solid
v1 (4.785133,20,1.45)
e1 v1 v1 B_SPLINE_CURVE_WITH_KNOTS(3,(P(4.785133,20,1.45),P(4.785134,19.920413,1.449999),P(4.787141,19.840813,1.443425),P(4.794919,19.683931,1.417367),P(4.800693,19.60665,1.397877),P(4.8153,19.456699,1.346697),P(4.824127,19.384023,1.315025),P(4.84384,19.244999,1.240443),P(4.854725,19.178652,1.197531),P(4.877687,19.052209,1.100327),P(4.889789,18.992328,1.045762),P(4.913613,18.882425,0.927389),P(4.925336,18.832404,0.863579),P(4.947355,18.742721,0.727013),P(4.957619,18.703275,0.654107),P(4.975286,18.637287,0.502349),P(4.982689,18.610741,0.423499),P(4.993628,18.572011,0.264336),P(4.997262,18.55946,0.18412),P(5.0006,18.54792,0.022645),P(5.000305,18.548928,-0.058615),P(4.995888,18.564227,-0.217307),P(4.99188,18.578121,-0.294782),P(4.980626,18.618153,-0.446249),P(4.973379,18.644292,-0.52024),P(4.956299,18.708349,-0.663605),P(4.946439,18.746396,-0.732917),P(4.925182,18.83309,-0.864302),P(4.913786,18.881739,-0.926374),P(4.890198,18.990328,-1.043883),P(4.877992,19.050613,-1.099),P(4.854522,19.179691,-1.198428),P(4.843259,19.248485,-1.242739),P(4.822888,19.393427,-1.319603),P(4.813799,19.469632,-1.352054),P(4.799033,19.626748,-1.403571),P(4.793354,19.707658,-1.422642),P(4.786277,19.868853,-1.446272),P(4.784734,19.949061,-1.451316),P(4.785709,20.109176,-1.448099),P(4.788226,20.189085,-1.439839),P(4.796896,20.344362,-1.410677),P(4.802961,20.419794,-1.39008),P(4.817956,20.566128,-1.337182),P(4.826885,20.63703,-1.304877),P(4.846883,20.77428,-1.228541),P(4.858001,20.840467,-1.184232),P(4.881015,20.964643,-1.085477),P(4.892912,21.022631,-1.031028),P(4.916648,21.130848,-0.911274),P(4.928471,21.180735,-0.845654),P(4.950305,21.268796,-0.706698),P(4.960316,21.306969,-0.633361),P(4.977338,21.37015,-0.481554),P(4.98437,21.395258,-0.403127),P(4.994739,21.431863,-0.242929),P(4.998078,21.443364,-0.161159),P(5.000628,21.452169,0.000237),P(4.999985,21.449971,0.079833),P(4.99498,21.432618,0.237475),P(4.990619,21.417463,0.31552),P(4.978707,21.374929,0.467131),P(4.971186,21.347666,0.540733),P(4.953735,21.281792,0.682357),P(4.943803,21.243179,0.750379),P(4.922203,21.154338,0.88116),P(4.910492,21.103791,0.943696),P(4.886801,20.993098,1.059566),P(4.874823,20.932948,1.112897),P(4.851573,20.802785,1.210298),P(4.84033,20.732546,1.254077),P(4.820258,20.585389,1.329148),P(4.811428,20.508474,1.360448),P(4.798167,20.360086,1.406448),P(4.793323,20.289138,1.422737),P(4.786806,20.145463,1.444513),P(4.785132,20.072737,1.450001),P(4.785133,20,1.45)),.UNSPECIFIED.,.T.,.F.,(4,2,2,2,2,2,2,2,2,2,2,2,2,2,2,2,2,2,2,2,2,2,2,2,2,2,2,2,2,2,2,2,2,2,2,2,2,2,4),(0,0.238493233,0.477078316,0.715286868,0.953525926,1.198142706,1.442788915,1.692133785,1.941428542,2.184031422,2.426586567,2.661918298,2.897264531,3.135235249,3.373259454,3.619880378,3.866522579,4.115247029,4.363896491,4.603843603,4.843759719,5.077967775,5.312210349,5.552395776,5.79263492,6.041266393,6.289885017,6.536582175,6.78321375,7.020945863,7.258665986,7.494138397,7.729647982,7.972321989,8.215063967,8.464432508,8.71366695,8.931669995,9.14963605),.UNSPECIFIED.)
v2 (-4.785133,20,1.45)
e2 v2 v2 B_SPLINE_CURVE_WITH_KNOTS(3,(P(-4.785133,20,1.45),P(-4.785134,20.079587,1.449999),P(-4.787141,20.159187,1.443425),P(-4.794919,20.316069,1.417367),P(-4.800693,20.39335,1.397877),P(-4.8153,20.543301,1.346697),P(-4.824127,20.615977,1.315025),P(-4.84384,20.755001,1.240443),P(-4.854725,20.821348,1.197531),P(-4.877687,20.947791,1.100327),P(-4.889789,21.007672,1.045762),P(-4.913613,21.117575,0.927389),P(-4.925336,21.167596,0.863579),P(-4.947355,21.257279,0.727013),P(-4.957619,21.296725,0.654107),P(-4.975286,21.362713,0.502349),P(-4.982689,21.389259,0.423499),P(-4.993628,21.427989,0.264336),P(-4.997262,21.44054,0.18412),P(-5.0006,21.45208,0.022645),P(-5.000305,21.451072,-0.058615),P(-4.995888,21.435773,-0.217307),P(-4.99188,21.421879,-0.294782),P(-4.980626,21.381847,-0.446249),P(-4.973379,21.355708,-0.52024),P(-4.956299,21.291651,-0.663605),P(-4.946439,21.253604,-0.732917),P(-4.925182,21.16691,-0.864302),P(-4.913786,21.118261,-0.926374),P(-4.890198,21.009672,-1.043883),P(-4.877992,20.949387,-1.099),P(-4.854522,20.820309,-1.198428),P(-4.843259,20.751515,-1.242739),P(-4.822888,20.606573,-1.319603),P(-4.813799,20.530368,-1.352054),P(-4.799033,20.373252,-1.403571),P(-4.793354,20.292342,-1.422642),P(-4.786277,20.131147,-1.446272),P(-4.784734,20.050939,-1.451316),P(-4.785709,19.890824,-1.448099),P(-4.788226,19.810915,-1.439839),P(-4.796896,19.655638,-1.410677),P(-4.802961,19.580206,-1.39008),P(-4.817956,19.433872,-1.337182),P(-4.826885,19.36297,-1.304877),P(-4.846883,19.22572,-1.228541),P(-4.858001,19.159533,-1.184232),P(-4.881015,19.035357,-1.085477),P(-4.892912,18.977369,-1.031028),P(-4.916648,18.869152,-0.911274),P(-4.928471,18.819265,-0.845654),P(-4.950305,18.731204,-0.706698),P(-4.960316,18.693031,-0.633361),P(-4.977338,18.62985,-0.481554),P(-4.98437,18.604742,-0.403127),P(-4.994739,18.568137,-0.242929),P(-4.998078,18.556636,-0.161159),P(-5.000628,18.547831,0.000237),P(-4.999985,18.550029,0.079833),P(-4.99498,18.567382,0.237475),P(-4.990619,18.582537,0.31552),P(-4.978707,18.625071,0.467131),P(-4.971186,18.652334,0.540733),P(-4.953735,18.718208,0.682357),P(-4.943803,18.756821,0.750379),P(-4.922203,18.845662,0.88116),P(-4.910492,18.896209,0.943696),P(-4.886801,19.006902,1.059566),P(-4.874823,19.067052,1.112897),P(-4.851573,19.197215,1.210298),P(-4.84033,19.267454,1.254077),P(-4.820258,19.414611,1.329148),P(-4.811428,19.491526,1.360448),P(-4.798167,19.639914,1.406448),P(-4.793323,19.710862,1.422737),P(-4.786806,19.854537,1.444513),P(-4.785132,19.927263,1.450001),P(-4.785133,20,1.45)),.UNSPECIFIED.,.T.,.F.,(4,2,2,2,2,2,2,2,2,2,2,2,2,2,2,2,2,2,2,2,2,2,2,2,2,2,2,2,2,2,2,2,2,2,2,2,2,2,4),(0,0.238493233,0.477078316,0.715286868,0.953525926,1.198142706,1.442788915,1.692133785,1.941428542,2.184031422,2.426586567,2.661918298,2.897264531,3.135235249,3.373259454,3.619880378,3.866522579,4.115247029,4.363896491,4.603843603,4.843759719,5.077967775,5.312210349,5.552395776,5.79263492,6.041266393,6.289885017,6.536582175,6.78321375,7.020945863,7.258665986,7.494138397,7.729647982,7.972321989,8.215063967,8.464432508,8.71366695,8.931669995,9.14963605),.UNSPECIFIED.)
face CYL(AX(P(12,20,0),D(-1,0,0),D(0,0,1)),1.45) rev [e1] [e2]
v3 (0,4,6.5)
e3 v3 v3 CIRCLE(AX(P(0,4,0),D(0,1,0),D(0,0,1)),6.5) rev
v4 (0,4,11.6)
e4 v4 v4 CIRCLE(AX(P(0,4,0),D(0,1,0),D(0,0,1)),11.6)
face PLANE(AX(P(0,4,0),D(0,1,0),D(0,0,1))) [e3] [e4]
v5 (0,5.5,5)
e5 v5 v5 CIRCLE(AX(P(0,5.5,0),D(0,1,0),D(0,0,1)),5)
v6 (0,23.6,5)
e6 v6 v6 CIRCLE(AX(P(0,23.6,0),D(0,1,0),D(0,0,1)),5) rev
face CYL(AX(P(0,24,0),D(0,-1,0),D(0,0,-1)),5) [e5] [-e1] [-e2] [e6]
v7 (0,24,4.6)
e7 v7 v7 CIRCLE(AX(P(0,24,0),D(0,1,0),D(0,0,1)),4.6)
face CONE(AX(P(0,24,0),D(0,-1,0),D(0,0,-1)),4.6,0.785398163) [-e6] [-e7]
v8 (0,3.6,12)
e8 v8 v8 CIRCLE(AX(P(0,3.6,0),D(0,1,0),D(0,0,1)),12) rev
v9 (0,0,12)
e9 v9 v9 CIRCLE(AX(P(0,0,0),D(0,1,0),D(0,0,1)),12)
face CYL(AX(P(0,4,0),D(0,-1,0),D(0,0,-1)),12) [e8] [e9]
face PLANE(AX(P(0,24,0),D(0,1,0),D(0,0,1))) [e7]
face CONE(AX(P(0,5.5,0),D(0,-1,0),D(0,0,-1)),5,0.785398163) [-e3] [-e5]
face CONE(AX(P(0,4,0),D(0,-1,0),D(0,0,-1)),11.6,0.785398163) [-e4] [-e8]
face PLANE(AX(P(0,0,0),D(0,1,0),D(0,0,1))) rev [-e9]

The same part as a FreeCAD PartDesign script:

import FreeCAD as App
import Part
import Sketcher

V = App.Vector


def edges_at(feature, points):
    """Names of the edges that pass closest to the given points."""
    edges = feature.Shape.Edges
    near = lambda p: min(range(len(edges)), key=lambda i: edges[i].distToShape(Part.Vertex(*p))[0])
    return sorted({f"Edge{near(p) + 1}" for p in points})

doc = App.newDocument("Part")
body = doc.addObject("PartDesign::Body", "Body")

# Sketch on XZ plane
sketch1 = body.newObject("Sketcher::SketchObject", "Sketch")
sketch1.AttachmentSupport = (doc.getObject("XZ_Plane"), [""])
sketch1.MapMode = "FlatFace"
sketch1.addGeometry(Part.Circle(V(0, 0, 0), V(0, 0, 1), 12), False)
sketch1.addConstraint([
    Sketcher.Constraint("Coincident", 0, 3, -1, 1),
    Sketcher.Constraint("Diameter", 0, 24.0),
])
pad1 = body.newObject("PartDesign::Pad", "Pad")
pad1.Profile = sketch1
pad1.Length = 4
pad1.Reversed = True

# Sketch on XZ plane
sketch2 = body.newObject("Sketcher::SketchObject", "Sketch001")
sketch2.AttachmentSupport = (doc.getObject("XZ_Plane"), [""])
sketch2.MapMode = "FlatFace"
sketch2.AttachmentOffset = App.Placement(V(0, 0, -4), App.Rotation())
sketch2.addGeometry(Part.Circle(V(0, 0, 0), V(0, 0, 1), 5), False)
sketch2.addConstraint([
    Sketcher.Constraint("Coincident", 0, 3, -1, 1),
    Sketcher.Constraint("Diameter", 0, 10.0),
])
pad2 = body.newObject("PartDesign::Pad", "Pad001")
pad2.Profile = sketch2
pad2.Length = 20
pad2.Reversed = True
doc.recompute()

chamfer = body.newObject("PartDesign::Chamfer", "Chamfer")
chamfer.Base = (pad2, edges_at(pad2, [(0, 4, -12), (0, 24, -5)]))
chamfer.Size = 0.4

# Sketch on YZ plane
sketch3 = body.newObject("Sketcher::SketchObject", "Sketch002")
sketch3.AttachmentSupport = (doc.getObject("YZ_Plane"), [""])
sketch3.MapMode = "FlatFace"
sketch3.addGeometry(Part.Circle(V(20, 0, 0), V(0, 0, 1), 1.4), False)
sketch3.addConstraint([
    Sketcher.Constraint("PointOnObject", 0, 3, -1),
    Sketcher.Constraint("Diameter", 0, 2.9),
    Sketcher.Constraint("DistanceX", -1, 1, 0, 3, 20.0),
])
pocket1 = body.newObject("PartDesign::Pocket", "Pocket")
pocket1.Profile = sketch3
pocket1.Type = "ThroughAll"
pocket1.Midplane = True
doc.recompute()

chamfer2 = body.newObject("PartDesign::Chamfer", "Chamfer001")
chamfer2.Base = (pocket1, edges_at(pocket1, [(0, 4, -5)]))
chamfer2.Size = 1.5

doc.recompute()
